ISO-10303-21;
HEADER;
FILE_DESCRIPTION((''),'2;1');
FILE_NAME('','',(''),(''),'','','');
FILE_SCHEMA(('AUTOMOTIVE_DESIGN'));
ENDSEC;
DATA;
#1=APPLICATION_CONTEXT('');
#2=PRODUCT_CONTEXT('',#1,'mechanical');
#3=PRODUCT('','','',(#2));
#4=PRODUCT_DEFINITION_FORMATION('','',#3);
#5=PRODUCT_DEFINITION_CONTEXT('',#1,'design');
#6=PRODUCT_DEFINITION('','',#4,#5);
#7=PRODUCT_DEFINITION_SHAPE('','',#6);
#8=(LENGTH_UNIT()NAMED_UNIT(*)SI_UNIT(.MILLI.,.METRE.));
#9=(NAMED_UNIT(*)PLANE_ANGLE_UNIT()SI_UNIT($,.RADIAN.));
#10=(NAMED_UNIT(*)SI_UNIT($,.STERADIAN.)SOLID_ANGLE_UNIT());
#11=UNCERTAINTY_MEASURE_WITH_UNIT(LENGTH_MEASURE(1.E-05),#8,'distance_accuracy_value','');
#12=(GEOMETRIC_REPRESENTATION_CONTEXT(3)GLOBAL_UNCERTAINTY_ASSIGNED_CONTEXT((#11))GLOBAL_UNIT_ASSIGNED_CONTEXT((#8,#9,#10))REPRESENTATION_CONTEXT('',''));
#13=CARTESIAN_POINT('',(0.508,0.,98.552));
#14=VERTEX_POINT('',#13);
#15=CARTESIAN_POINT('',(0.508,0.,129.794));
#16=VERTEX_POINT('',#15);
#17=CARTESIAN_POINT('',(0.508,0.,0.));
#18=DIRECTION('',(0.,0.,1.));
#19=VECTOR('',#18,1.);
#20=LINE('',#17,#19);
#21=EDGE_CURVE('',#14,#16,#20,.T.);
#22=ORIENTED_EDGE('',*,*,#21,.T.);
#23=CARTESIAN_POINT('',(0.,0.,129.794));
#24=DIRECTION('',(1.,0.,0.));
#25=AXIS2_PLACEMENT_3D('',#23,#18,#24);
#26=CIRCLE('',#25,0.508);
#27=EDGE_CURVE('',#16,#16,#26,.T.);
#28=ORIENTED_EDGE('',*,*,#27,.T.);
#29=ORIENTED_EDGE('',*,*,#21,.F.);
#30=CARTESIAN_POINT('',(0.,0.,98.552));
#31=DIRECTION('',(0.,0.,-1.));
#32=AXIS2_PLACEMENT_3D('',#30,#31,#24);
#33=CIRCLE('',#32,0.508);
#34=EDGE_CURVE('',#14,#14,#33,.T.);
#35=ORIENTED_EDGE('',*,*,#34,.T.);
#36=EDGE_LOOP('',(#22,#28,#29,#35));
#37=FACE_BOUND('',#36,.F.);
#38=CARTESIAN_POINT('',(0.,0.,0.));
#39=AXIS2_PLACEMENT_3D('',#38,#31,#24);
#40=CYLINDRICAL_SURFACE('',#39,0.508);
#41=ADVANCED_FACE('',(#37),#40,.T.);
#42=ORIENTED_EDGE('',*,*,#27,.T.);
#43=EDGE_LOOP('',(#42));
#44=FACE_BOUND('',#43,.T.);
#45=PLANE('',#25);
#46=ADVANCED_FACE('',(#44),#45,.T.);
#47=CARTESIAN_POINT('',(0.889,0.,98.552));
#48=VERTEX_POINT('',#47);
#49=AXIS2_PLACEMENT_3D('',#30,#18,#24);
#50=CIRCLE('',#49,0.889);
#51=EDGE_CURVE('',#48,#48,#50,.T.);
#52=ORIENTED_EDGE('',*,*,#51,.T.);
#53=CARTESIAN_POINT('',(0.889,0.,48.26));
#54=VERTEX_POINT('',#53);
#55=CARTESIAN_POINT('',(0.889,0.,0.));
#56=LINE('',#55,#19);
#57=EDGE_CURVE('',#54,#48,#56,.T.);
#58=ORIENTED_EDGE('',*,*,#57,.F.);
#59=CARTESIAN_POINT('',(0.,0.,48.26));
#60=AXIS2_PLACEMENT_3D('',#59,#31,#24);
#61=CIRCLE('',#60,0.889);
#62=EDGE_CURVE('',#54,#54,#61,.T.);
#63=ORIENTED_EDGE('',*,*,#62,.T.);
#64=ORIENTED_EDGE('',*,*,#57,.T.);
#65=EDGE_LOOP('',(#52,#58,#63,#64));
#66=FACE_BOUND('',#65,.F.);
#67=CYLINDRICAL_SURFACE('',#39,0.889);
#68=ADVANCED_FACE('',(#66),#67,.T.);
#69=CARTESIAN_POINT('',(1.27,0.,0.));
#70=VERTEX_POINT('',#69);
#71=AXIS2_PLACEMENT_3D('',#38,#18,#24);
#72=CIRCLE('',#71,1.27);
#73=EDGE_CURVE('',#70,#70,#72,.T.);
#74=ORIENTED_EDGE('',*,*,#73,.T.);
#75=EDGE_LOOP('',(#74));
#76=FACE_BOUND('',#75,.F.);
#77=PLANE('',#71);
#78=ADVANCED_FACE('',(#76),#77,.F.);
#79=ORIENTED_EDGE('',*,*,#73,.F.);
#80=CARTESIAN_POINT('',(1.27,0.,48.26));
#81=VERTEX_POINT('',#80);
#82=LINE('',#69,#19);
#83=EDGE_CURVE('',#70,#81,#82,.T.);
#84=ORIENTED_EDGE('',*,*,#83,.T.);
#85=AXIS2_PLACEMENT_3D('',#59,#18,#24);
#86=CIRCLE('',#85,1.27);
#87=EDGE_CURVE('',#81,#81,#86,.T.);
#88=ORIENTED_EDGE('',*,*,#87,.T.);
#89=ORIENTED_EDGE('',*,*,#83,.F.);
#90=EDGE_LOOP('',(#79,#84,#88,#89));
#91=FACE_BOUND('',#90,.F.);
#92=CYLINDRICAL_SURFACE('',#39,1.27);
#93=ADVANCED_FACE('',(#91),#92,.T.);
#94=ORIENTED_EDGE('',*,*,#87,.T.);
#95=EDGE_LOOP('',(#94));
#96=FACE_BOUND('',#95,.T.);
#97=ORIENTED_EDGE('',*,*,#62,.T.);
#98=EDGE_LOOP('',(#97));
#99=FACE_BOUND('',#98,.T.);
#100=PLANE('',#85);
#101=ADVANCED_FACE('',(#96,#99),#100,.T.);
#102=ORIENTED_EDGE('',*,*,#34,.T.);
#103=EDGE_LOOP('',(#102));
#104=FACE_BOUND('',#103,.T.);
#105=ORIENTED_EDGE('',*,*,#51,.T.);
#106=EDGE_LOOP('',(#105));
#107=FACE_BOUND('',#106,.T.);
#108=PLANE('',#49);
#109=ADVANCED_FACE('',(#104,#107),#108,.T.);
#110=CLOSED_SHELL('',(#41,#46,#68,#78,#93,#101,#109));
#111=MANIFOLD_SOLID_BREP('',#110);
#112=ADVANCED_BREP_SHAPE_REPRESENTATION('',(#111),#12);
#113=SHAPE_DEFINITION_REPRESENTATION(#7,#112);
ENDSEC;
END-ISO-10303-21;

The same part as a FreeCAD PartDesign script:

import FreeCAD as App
import Part
import Sketcher
Q = App.Units.Quantity

doc = App.newDocument("Part")
body = doc.addObject("PartDesign::Body", "Body")

sketch1 = doc.addObject("Sketcher::SketchObject", "Sketch")
body.addObject(sketch1)
sketch1.AttachmentSupport = (doc.XY_Plane, [""])
sketch1.MapMode = "FlatFace"
sketch1.addGeometry(Part.Circle(App.Vector(0, 0, 0), App.Vector(0, 0, 1), 1.27), False)
sketch1.addConstraint([
    Sketcher.Constraint("Coincident", 0, 3, -1, 1),
    Sketcher.Constraint("Diameter", 0, Q("0.1 in")),
])
pad1 = doc.addObject("PartDesign::Pad", "Pad")
body.addObject(pad1)
pad1.Profile = sketch1
pad1.Length = Q("1.9 in")

sketch2 = doc.addObject("Sketcher::SketchObject", "Sketch001")
body.addObject(sketch2)
sketch2.AttachmentSupport = (doc.XY_Plane, [""])
sketch2.MapMode = "FlatFace"
sketch2.addGeometry(Part.Circle(App.Vector(0, 0, 0), App.Vector(0, 0, 1), 0.889), False)
sketch2.addConstraint([
    Sketcher.Constraint("Coincident", 0, 3, -1, 1),
    Sketcher.Constraint("Diameter", 0, Q("0.07 in")),
])
pad2 = doc.addObject("PartDesign::Pad", "Pad001")
body.addObject(pad2)
pad2.Profile = sketch2
pad2.Length = Q("3.88 in")

sketch3 = doc.addObject("Sketcher::SketchObject", "Sketch002")
body.addObject(sketch3)
sketch3.AttachmentSupport = (doc.XY_Plane, [""])
sketch3.MapMode = "FlatFace"
sketch3.addGeometry(Part.Circle(App.Vector(0, 0, 0), App.Vector(0, 0, 1), 0.508), False)
sketch3.addConstraint([
    Sketcher.Constraint("Coincident", 0, 3, -1, 1),
    Sketcher.Constraint("Diameter", 0, Q("0.04 in")),
])
pad3 = doc.addObject("PartDesign::Pad", "Pad002")
body.addObject(pad3)
pad3.Profile = sketch3
pad3.Length = Q("5.11 in")

doc.recompute()
